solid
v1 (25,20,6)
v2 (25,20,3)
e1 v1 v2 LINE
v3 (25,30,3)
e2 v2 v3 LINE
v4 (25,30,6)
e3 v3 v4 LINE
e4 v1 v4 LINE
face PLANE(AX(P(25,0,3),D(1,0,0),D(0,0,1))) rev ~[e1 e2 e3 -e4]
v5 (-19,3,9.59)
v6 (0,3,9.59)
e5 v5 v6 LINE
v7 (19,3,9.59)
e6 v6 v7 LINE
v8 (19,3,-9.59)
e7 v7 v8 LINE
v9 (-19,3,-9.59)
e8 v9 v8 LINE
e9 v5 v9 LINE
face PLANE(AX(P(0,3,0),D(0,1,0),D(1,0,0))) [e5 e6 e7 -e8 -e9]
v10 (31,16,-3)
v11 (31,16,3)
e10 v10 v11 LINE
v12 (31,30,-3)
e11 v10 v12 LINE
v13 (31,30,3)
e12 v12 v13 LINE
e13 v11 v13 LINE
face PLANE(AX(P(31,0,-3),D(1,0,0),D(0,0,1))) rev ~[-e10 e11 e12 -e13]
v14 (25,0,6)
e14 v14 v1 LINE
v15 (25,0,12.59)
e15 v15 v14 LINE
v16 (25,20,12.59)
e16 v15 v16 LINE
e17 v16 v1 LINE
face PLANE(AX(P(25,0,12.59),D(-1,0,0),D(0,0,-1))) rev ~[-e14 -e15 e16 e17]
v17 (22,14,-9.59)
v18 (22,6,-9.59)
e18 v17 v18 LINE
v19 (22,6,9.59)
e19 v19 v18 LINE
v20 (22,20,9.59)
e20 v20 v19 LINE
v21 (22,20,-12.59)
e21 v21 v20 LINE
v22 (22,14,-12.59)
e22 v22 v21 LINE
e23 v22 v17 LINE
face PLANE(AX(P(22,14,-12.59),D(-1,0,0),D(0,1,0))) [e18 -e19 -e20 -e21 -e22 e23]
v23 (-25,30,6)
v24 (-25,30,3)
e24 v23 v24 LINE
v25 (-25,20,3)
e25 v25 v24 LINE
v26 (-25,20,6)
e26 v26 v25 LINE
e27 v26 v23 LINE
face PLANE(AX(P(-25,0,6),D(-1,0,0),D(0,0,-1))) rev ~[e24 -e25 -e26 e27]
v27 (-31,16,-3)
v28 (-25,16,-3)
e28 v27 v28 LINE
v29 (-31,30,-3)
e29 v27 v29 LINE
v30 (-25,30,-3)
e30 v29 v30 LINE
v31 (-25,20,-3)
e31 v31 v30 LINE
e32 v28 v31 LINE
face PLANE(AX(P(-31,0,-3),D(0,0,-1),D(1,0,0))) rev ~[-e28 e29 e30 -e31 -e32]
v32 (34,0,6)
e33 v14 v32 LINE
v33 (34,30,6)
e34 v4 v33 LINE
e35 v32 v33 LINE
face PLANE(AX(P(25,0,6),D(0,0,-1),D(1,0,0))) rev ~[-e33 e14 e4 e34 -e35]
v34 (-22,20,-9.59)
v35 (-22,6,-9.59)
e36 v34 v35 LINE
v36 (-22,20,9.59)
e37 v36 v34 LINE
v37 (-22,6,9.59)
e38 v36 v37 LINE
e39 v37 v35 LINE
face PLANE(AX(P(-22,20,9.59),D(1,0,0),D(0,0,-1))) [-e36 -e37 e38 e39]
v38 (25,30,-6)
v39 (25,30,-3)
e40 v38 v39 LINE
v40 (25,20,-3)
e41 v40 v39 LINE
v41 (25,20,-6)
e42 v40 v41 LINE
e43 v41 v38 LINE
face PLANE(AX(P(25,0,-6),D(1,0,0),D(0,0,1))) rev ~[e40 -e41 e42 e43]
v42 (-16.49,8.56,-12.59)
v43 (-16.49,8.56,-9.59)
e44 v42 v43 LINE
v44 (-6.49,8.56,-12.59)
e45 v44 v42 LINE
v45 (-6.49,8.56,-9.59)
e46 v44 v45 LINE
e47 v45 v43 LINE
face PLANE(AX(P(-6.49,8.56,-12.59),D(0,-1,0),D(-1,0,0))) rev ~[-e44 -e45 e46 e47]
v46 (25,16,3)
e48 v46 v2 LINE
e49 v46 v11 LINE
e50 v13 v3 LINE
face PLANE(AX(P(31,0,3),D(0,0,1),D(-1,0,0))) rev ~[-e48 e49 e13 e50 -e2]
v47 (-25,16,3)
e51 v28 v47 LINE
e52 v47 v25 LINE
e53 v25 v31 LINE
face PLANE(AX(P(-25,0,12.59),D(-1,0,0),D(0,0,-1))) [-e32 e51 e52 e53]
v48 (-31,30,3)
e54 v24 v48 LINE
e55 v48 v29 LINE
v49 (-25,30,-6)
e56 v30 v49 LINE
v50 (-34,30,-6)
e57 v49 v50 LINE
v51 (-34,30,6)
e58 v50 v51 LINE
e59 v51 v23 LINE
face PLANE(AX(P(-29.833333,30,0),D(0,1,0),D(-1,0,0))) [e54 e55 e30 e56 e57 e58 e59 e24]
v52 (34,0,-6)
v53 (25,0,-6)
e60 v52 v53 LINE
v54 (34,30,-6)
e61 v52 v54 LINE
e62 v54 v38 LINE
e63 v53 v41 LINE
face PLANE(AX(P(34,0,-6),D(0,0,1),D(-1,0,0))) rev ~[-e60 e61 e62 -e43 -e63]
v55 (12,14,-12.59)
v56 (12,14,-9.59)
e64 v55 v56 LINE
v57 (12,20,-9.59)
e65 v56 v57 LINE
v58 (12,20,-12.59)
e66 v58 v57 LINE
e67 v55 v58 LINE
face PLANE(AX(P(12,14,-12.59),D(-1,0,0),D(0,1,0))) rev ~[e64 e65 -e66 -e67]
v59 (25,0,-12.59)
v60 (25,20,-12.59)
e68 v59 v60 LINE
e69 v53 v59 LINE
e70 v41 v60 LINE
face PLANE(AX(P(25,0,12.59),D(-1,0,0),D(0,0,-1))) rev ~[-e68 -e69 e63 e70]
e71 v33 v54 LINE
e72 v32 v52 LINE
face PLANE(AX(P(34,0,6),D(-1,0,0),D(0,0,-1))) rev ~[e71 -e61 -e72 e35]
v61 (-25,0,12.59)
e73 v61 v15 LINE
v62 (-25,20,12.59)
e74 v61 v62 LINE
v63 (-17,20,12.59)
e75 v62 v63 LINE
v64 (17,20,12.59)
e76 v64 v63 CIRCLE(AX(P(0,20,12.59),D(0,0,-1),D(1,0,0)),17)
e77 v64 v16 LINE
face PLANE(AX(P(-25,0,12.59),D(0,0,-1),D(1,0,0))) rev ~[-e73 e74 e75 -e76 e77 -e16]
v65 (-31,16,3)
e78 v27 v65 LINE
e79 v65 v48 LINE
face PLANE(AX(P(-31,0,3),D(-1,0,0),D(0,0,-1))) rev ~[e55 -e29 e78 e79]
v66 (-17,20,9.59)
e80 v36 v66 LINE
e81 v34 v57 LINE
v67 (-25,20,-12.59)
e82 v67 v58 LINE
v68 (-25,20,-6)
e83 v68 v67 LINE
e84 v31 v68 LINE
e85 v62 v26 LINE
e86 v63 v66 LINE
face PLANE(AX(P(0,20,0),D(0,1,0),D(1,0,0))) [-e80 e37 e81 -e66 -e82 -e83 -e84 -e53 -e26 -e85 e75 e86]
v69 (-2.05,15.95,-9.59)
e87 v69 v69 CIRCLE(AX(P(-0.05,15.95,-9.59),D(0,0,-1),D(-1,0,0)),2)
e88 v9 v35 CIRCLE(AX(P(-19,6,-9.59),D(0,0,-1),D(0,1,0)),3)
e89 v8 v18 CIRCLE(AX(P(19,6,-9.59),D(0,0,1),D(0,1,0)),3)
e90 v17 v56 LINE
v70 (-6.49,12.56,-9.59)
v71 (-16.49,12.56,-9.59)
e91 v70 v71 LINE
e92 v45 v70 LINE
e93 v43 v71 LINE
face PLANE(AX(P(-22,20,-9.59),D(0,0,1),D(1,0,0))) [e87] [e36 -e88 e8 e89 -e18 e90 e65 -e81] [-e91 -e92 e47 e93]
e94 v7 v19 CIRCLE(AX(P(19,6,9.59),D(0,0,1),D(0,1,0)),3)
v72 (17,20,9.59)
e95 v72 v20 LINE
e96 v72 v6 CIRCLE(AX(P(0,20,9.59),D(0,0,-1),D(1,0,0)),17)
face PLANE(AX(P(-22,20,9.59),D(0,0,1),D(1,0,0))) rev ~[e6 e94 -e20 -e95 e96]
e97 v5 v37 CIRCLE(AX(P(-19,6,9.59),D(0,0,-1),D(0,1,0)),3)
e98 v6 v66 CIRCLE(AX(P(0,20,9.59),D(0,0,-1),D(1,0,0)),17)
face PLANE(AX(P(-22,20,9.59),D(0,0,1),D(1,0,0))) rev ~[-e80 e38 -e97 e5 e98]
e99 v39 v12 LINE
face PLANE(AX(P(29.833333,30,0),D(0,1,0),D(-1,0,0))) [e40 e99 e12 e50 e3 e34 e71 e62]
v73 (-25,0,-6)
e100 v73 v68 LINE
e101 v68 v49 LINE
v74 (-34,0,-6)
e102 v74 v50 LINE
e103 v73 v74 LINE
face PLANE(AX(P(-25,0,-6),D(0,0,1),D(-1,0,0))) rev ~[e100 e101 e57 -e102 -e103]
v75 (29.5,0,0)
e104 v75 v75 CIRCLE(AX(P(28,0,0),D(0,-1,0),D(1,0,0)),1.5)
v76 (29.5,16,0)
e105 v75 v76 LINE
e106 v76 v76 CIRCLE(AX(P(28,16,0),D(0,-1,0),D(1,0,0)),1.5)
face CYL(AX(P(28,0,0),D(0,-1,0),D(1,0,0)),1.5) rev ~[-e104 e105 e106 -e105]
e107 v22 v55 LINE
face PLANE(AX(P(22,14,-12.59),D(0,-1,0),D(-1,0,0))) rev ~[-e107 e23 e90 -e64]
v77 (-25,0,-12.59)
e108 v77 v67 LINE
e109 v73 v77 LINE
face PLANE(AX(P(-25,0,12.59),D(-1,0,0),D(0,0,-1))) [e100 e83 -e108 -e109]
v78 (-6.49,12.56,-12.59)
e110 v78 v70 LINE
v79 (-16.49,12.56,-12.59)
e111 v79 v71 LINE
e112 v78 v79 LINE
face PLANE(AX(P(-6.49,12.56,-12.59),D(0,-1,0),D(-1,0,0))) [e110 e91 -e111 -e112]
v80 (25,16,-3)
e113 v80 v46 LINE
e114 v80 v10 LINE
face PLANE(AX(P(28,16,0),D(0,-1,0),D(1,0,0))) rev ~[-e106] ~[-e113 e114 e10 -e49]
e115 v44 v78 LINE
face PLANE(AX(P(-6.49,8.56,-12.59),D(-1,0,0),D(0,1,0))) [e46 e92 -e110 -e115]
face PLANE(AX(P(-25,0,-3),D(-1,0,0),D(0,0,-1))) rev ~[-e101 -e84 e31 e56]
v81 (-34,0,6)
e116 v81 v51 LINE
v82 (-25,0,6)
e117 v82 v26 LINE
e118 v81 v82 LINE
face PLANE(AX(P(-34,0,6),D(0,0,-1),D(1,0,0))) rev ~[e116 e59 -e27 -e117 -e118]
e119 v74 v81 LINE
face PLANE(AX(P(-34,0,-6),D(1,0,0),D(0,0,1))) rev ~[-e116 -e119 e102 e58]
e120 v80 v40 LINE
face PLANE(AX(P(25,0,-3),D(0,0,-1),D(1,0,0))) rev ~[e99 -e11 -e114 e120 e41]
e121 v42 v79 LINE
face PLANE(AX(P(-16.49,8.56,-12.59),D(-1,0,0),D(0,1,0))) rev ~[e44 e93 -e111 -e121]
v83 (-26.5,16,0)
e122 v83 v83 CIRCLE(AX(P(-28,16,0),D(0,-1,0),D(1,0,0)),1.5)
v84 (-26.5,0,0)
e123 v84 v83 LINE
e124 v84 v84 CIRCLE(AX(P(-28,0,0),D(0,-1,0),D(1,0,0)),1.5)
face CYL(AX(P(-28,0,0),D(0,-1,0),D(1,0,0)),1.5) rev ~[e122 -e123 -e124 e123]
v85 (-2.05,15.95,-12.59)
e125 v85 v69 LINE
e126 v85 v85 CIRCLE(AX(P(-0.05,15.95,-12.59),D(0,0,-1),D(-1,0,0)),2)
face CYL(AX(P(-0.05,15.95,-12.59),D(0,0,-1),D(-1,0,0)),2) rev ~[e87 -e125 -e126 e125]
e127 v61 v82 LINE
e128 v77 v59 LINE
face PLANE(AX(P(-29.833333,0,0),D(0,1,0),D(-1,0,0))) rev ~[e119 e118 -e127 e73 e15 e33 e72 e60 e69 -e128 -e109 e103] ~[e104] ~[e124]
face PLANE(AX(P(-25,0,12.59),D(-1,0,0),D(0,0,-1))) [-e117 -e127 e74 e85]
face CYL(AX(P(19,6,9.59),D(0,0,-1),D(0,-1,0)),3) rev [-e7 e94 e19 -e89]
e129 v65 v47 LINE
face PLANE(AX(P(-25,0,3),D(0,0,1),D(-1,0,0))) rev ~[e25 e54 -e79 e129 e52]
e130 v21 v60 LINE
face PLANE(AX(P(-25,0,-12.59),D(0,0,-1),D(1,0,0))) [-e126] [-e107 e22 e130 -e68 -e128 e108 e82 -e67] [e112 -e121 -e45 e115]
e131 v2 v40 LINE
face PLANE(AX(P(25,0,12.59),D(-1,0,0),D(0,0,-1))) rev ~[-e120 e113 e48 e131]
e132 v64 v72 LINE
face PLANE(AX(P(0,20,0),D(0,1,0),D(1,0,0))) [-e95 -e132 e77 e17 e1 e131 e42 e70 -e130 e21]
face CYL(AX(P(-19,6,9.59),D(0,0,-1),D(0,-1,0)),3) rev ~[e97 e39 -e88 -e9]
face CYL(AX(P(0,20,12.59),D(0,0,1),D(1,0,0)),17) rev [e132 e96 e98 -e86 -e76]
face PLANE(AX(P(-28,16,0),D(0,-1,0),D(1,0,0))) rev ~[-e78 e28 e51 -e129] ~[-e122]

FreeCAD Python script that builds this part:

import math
import FreeCAD as App
import Part
import Sketcher
Q = App.Units.Quantity


def edges_at(feature, points):
    """Names of the edges that pass closest to the given points."""
    edges = feature.Shape.Edges
    near = lambda p: min(range(len(edges)), key=lambda i: edges[i].distToShape(Part.Vertex(*p))[0])
    return sorted({f"Edge{near(p) + 1}" for p in points})


def add_polygon(sketch, points):
    """Adds a closed chain of lines whose ends are joined by coincident constraints."""
    first, n = sketch.GeometryCount, len(points)
    for a, b in zip(points, points[1:] + points[:1]):
        sketch.addGeometry(Part.LineSegment(App.Vector(*a, 0), App.Vector(*b, 0)), False)
    for i in range(n):
        sketch.addConstraint(Sketcher.Constraint("Coincident", first + i, 2, first + (i + 1) % n, 1))

doc = App.newDocument("Part")
params = doc.addObject("Spreadsheet::Sheet", "Params")
for row, (alias, value) in enumerate([
    ("sketch1_width", "50 mm"),
    ("sketch1_height", "25.18 mm"),
    ("pad1_length", "20 mm"),
    ("sketch2_width", "44 mm"),
    ("sketch2_height", "19.18 mm"),
    ("pocket1_length", "17 mm"),
    ("sketch3_radius", "17 mm"),
    ("pocket2_length", "3 mm"),
    ("sketch4_diameter", "4 mm"),
    ("sketch4_width", "10 mm"),
    ("sketch4_height", "6 mm"),
    ("sketch4_height2", "4 mm"),
    ("pocket3_length", "3 mm"),
    ("fillet_radius", "3 mm"),
    ("sketch5_diameter", "3 mm"),
    ("sketch5_width", "6 mm"),
    ("pad2_length", "16 mm"),
    ("sketch6_width", "9 mm"),
    ("sketch6_width2", "6 mm"),
    ("sketch6_height", "3 mm"),
    ("pad3_length", "30 mm"),
], start=1):
    params.set(f"A{row}", alias)
    params.set(f"B{row}", "=" + value)
    params.setAlias(f"B{row}", alias)

body = doc.addObject("PartDesign::Body", "Body")

sketch1 = body.newObject("Sketcher::SketchObject", "Sketch")
sketch1.AttachmentSupport = (doc.getObject("XZ_Plane"), [""])
sketch1.MapMode = "FlatFace"
add_polygon(sketch1, [(-25, -12.59), (-25, 12.59), (25, 12.59), (25, -12.59)])
sketch1.addConstraint(Sketcher.Constraint("Vertical", 0))
sketch1.addConstraint(Sketcher.Constraint("Horizontal", 1))
sketch1.addConstraint(Sketcher.Constraint("Vertical", 2))
sketch1.addConstraint(Sketcher.Constraint("Horizontal", 3))
sketch1.addConstraint(Sketcher.Constraint("Symmetric", 0, 2, 2, 2, -1, 1))
sketch1.addConstraint(Sketcher.Constraint("DistanceX", 1, 1, 1, 2, Q("50 mm")))
sketch1.addConstraint(Sketcher.Constraint("DistanceY", 0, 1, 0, 2, Q("25.18 mm")))
sketch1.setExpression("Constraints[9]", "Params.sketch1_width")
sketch1.setExpression("Constraints[10]", "Params.sketch1_height")
pad1 = body.newObject("PartDesign::Pad", "Pad")
pad1.Profile = sketch1
pad1.setExpression("Length", "Params.pad1_length")
pad1.Reversed = True

sketch2 = body.newObject("Sketcher::SketchObject", "Sketch001")
sketch2.AttachmentSupport = (doc.getObject("XZ_Plane"), [""])
sketch2.MapMode = "FlatFace"
sketch2.AttachmentOffset = App.Placement(App.Vector(0, 0, -20), App.Rotation())
add_polygon(sketch2, [(-22, -9.59), (-22, 9.59), (22, 9.59), (22, -9.59)])
sketch2.addConstraint(Sketcher.Constraint("Vertical", 0))
sketch2.addConstraint(Sketcher.Constraint("Horizontal", 1))
sketch2.addConstraint(Sketcher.Constraint("Vertical", 2))
sketch2.addConstraint(Sketcher.Constraint("Horizontal", 3))
sketch2.addConstraint(Sketcher.Constraint("Symmetric", 0, 2, 2, 2, -1, 1))
sketch2.addConstraint(Sketcher.Constraint("DistanceX", 1, 1, 1, 2, Q("44 mm")))
sketch2.addConstraint(Sketcher.Constraint("DistanceY", 0, 1, 0, 2, Q("19.18 mm")))
sketch2.setExpression("Constraints[9]", "Params.sketch2_width")
sketch2.setExpression("Constraints[10]", "Params.sketch2_height")
pocket1 = body.newObject("PartDesign::Pocket", "Pocket")
pocket1.Profile = sketch2
pocket1.setExpression("Length", "Params.pocket1_length")
pocket1.Reversed = True

sketch3 = body.newObject("Sketcher::SketchObject", "Sketch002")
sketch3.AttachmentSupport = (doc.getObject("XY_Plane"), [""])
sketch3.MapMode = "FlatFace"
sketch3.AttachmentOffset = App.Placement(App.Vector(0, 0, 12.59), App.Rotation())
sketch3.addGeometry(Part.LineSegment(App.Vector(17, 20, 0), App.Vector(-17, 20, 0)), False)
sketch3.addGeometry(Part.ArcOfCircle(Part.Circle(App.Vector(0, 20, 0), App.Vector(0, 0, 1), 17), math.radians(180), math.radians(360)), False)
sketch3.addConstraint(Sketcher.Constraint("Coincident", 0, 1, 1, 2))
sketch3.addConstraint(Sketcher.Constraint("Coincident", 1, 1, 0, 2))
sketch3.addConstraint(Sketcher.Constraint("Horizontal", 0))
sketch3.addConstraint(Sketcher.Constraint("PointOnObject", 1, 3, -2))
sketch3.addConstraint(Sketcher.Constraint("Horizontal", 1, 3, 0, 1))
sketch3.addConstraint(Sketcher.Constraint("Radius", 1, Q("17 mm")))
sketch3.addConstraint(Sketcher.Constraint("DistanceY", -1, 1, 1, 3, Q("20 mm")))
sketch3.setExpression("Constraints[5]", "Params.sketch3_radius")
pocket2 = body.newObject("PartDesign::Pocket", "Pocket001")
pocket2.Profile = sketch3
pocket2.setExpression("Length", "Params.pocket2_length")

sketch4 = body.newObject("Sketcher::SketchObject", "Sketch003")
sketch4.AttachmentSupport = (doc.getObject("XY_Plane"), [""])
sketch4.MapMode = "FlatFace"
sketch4.AttachmentOffset = App.Placement(App.Vector(0, 0, -12.59), App.Rotation())
sketch4.addGeometry(Part.Circle(App.Vector(-0.05, 15.95, 0), App.Vector(0, 0, 1), 2), False)
add_polygon(sketch4, [(49.694047, 33.710657), (49.694047, 32.419311), (49.275547, 32.419311), (49.275547, 33.710657)])
add_polygon(sketch4, [(22, 20), (22, 14), (12, 14), (12, 20)])
add_polygon(sketch4, [(-6.49, 12.56), (-6.49, 8.56), (-16.49, 8.56), (-16.49, 12.56)])
sketch4.addConstraint(Sketcher.Constraint("Vertical", 1))
sketch4.addConstraint(Sketcher.Constraint("Horizontal", 2))
sketch4.addConstraint(Sketcher.Constraint("Vertical", 3))
sketch4.addConstraint(Sketcher.Constraint("Horizontal", 4))
sketch4.addConstraint(Sketcher.Constraint("Vertical", 5))
sketch4.addConstraint(Sketcher.Constraint("Horizontal", 6))
sketch4.addConstraint(Sketcher.Constraint("Vertical", 7))
sketch4.addConstraint(Sketcher.Constraint("Horizontal", 8))
sketch4.addConstraint(Sketcher.Constraint("Vertical", 9))
sketch4.addConstraint(Sketcher.Constraint("Horizontal", 10))
sketch4.addConstraint(Sketcher.Constraint("Vertical", 11))
sketch4.addConstraint(Sketcher.Constraint("Horizontal", 12))
sketch4.addConstraint(Sketcher.Constraint("Equal", 8, 10))
sketch4.addConstraint(Sketcher.Constraint("Diameter", 0, Q("4 mm")))
sketch4.addConstraint(Sketcher.Constraint("DistanceX", 6, 2, 6, 1, Q("10 mm")))
sketch4.addConstraint(Sketcher.Constraint("DistanceY", 5, 2, 5, 1, Q("6 mm")))
sketch4.addConstraint(Sketcher.Constraint("DistanceY", 9, 2, 9, 1, Q("4 mm")))
sketch4.addConstraint(Sketcher.Constraint("DistanceX", -1, 1, 5, 2, Q("22 mm")))
sketch4.addConstraint(Sketcher.Constraint("DistanceY", -1, 1, 5, 2, Q("14 mm")))
sketch4.addConstraint(Sketcher.Constraint("DistanceX", 0, 3, -1, 1, Q("0.05 mm")))
sketch4.addConstraint(Sketcher.Constraint("DistanceY", -1, 1, 0, 3, Q("15.95 mm")))
sketch4.addConstraint(Sketcher.Constraint("DistanceX", 9, 2, -1, 1, Q("6.49 mm")))
sketch4.addConstraint(Sketcher.Constraint("DistanceY", -1, 1, 9, 2, Q("8.56 mm")))
sketch4.addConstraint(Sketcher.Constraint("DistanceX", 2, 2, 2, 1, Q("0.4185 mm")))
sketch4.addConstraint(Sketcher.Constraint("DistanceY", 1, 2, 1, 1, Q("1.291346 mm")))
sketch4.addConstraint(Sketcher.Constraint("DistanceY", -1, 1, 1, 2, Q("32.419311 mm")))
sketch4.addConstraint(Sketcher.Constraint("DistanceX", -1, 1, 1, 2, Q("49.694047 mm")))
sketch4.setExpression("Constraints[25]", "Params.sketch4_diameter")
sketch4.setExpression("Constraints[26]", "Params.sketch4_width")
sketch4.setExpression("Constraints[27]", "Params.sketch4_height")
sketch4.setExpression("Constraints[28]", "Params.sketch4_height2")
pocket3 = body.newObject("PartDesign::Pocket", "Pocket002")
pocket3.Profile = sketch4
pocket3.setExpression("Length", "Params.pocket3_length")
pocket3.Reversed = True
doc.recompute()

fillet = body.newObject("PartDesign::Fillet", "Fillet")
fillet.Base = (pocket3, edges_at(pocket3, [(22, 3, 0), (-22, 3, 0)]))
fillet.setExpression("Radius", "Params.fillet_radius")

sketch5 = body.newObject("Sketcher::SketchObject", "Sketch004")
sketch5.AttachmentSupport = (doc.getObject("XZ_Plane"), [""])
sketch5.MapMode = "FlatFace"
add_polygon(sketch5, [(-31, 3), (-31, -3), (-25, -3), (-25, 3)])
sketch5.addGeometry(Part.Circle(App.Vector(-28, 0, 0), App.Vector(0, 0, 1), 1.5), False)
add_polygon(sketch5, [(25, 3), (25, -3), (31, -3), (31, 3)])
sketch5.addGeometry(Part.Circle(App.Vector(28, 0, 0), App.Vector(0, 0, 1), 1.5), False)
sketch5.addConstraint(Sketcher.Constraint("Vertical", 0))
sketch5.addConstraint(Sketcher.Constraint("Horizontal", 1))
sketch5.addConstraint(Sketcher.Constraint("Vertical", 2))
sketch5.addConstraint(Sketcher.Constraint("Horizontal", 3))
sketch5.addConstraint(Sketcher.Constraint("Vertical", 5))
sketch5.addConstraint(Sketcher.Constraint("Horizontal", 6))
sketch5.addConstraint(Sketcher.Constraint("Vertical", 7))
sketch5.addConstraint(Sketcher.Constraint("Horizontal", 8))
sketch5.addConstraint(Sketcher.Constraint("Equal", 4, 9))
sketch5.addConstraint(Sketcher.Constraint("Symmetric", 4, 3, 9, 3, -1, 1))
sketch5.addConstraint(Sketcher.Constraint("Symmetric", 2, 2, 5, 2, -1, 1))
sketch5.addConstraint(Sketcher.Constraint("Symmetric", 0, 2, 7, 2, -1, 1))
sketch5.addConstraint(Sketcher.Constraint("PointOnObject", 4, 3, -1))
sketch5.addConstraint(Sketcher.Constraint("Horizontal", 1, 2, 5, 2))
sketch5.addConstraint(Sketcher.Constraint("Equal", 8, 0))
sketch5.addConstraint(Sketcher.Constraint("Diameter", 4, Q("3 mm")))
sketch5.addConstraint(Sketcher.Constraint("DistanceX", 1, 1, 1, 2, Q("6 mm")))
sketch5.addConstraint(Sketcher.Constraint("DistanceX", 4, 3, -1, 1, Q("28 mm")))
sketch5.addConstraint(Sketcher.Constraint("DistanceX", 0, 2, -1, 1, Q("31 mm")))
sketch5.setExpression("Constraints[23]", "Params.sketch5_diameter")
sketch5.setExpression("Constraints[24]", "Params.sketch5_width")
pad2 = body.newObject("PartDesign::Pad", "Pad001")
pad2.Profile = sketch5
pad2.setExpression("Length", "Params.pad2_length")
pad2.Reversed = True

sketch6 = body.newObject("Sketcher::SketchObject", "Sketch005")
sketch6.AttachmentSupport = (doc.getObject("XZ_Plane"), [""])
sketch6.MapMode = "FlatFace"
add_polygon(sketch6, [(-34, -6), (-25, -6), (-25, -3), (-31, -3), (-31, 3), (-25, 3), (-25, 6), (-34, 6)])
add_polygon(sketch6, [(25, 6), (25, 3), (31, 3), (31, -3), (25, -3), (25, -6), (34, -6), (34, 6)])
sketch6.addConstraint(Sketcher.Constraint("Horizontal", 0))
sketch6.addConstraint(Sketcher.Constraint("Vertical", 1))
sketch6.addConstraint(Sketcher.Constraint("Horizontal", 2))
sketch6.addConstraint(Sketcher.Constraint("Vertical", 3))
sketch6.addConstraint(Sketcher.Constraint("Horizontal", 4))
sketch6.addConstraint(Sketcher.Constraint("Vertical", 5))
sketch6.addConstraint(Sketcher.Constraint("Horizontal", 6))
sketch6.addConstraint(Sketcher.Constraint("Vertical", 7))
sketch6.addConstraint(Sketcher.Constraint("Vertical", 8))
sketch6.addConstraint(Sketcher.Constraint("Horizontal", 9))
sketch6.addConstraint(Sketcher.Constraint("Vertical", 10))
sketch6.addConstraint(Sketcher.Constraint("Horizontal", 11))
sketch6.addConstraint(Sketcher.Constraint("Vertical", 12))
sketch6.addConstraint(Sketcher.Constraint("Horizontal", 13))
sketch6.addConstraint(Sketcher.Constraint("Vertical", 14))
sketch6.addConstraint(Sketcher.Constraint("Horizontal", 15))
sketch6.addConstraint(Sketcher.Constraint("Symmetric", 1, 2, 8, 2, -1, 1))
sketch6.addConstraint(Sketcher.Constraint("Symmetric", 3, 2, 10, 2, -1, 1))
sketch6.addConstraint(Sketcher.Constraint("Symmetric", 5, 2, 12, 2, -1, 1))
sketch6.addConstraint(Sketcher.Constraint("Symmetric", 7, 2, 14, 2, -1, 1))
sketch6.addConstraint(Sketcher.Constraint("Symmetric", 4, 2, 8, 2, -2))
sketch6.addConstraint(Sketcher.Constraint("Horizontal", 7, 2, 12, 2))
sketch6.addConstraint(Sketcher.Constraint("Equal", 11, 3))
sketch6.addConstraint(Sketcher.Constraint("DistanceX", 0, 1, 0, 2, Q("9 mm")))
sketch6.addConstraint(Sketcher.Constraint("DistanceX", 2, 2, 2, 1, Q("6 mm")))
sketch6.addConstraint(Sketcher.Constraint("DistanceY", 1, 1, 1, 2, Q("3 mm")))
sketch6.addConstraint(Sketcher.Constraint("DistanceX", 0, 2, -1, 1, Q("25 mm")))
sketch6.setExpression("Constraints[39]", "Params.sketch6_width")
sketch6.setExpression("Constraints[40]", "Params.sketch6_width2")
sketch6.setExpression("Constraints[41]", "Params.sketch6_height")
pad3 = body.newObject("PartDesign::Pad", "Pad002")
pad3.Profile = sketch6
pad3.setExpression("Length", "Params.pad3_length")
pad3.Reversed = True

doc.recompute()
